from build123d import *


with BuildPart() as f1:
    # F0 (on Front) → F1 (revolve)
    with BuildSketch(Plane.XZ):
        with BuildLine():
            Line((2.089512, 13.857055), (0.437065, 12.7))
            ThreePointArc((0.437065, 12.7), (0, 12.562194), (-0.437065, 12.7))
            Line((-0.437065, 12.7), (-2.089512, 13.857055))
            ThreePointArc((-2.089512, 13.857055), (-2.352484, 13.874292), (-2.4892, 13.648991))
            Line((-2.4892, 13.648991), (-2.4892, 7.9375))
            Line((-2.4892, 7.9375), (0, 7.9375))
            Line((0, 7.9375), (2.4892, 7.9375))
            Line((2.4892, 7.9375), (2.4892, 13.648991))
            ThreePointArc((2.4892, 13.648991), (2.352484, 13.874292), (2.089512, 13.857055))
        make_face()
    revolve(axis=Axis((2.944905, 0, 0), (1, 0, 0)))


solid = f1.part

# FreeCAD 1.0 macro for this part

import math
import FreeCAD as App
import Part
import Sketcher
Q = App.Units.Quantity

doc = App.newDocument("Part")
body = doc.addObject("PartDesign::Body", "Body")

sketch1 = body.newObject("Sketcher::SketchObject", "Sketch")
sketch1.AttachmentSupport = (doc.getObject("XZ_Plane"), [""])
sketch1.MapMode = "FlatFace"
sketch1.addGeometry(Part.LineSegment(App.Vector(2.09, 13.86, 0), App.Vector(0.44, 12.7, 0)), False)
sketch1.addGeometry(Part.ArcOfCircle(Part.Circle(App.Vector(0, 13.32, 0), App.Vector(0, 0, 1), 0.76), math.radians(-125), math.radians(-55)), False)
sketch1.addGeometry(Part.LineSegment(App.Vector(-0.44, 12.7, 0), App.Vector(-2.09, 13.86, 0)), False)
sketch1.addGeometry(Part.ArcOfCircle(Part.Circle(App.Vector(-2.24, 13.65, 0), App.Vector(0, 0, 1), 0.25), math.radians(55), math.radians(180)), False)
sketch1.addGeometry(Part.LineSegment(App.Vector(-2.49, 13.65, 0), App.Vector(-2.49, 7.94, 0)), False)
sketch1.addGeometry(Part.LineSegment(App.Vector(-2.49, 7.94, 0), App.Vector(2.49, 7.94, 0)), False)
sketch1.addGeometry(Part.LineSegment(App.Vector(2.49, 7.94, 0), App.Vector(2.49, 13.65, 0)), False)
sketch1.addGeometry(Part.ArcOfCircle(Part.Circle(App.Vector(2.24, 13.65, 0), App.Vector(0, 0, 1), 0.25), math.radians(0), math.radians(125)), False)
sketch1.addConstraint(Sketcher.Constraint("Tangent", 0, 2, 1, 2))
sketch1.addConstraint(Sketcher.Constraint("Tangent", 1, 1, 2, 1))
sketch1.addConstraint(Sketcher.Constraint("Coincident", 2, 2, 3, 1))
sketch1.addConstraint(Sketcher.Constraint("Coincident", 3, 2, 4, 1))
sketch1.addConstraint(Sketcher.Constraint("Coincident", 4, 2, 5, 1))
sketch1.addConstraint(Sketcher.Constraint("Coincident", 5, 2, 6, 1))
sketch1.addConstraint(Sketcher.Constraint("Coincident", 6, 2, 7, 1))
sketch1.addConstraint(Sketcher.Constraint("Coincident", 7, 2, 0, 1))
sketch1.addConstraint(Sketcher.Constraint("Vertical", 4))
sketch1.addConstraint(Sketcher.Constraint("Horizontal", 5))
sketch1.addConstraint(Sketcher.Constraint("Vertical", 6))
sketch1.addConstraint(Sketcher.Constraint("Equal", 3, 7))
sketch1.addConstraint(Sketcher.Constraint("Symmetric", 3, 3, 7, 3, -2))
sketch1.addConstraint(Sketcher.Constraint("PointOnObject", 1, 3, -2))
sketch1.addConstraint(Sketcher.Constraint("Horizontal", 7, 3, 3, 2))
sketch1.addConstraint(Sketcher.Constraint("Horizontal", 3, 2, 6, 2))
sketch1.addConstraint(Sketcher.Constraint("Horizontal", 2, 2, 7, 2))
sketch1.addConstraint(Sketcher.Constraint("Radius", 1, Q("0.03 in")))
sketch1.addConstraint(Sketcher.Constraint("Radius", 3, Q("0.01 in")))
sketch1.addConstraint(Sketcher.Constraint("Angle", 0, Q("-145.00002 deg")))
sketch1.addConstraint(Sketcher.Constraint("DistanceY", -1, 1, 0, 2, Q("0.5 in")))
sketch1.addConstraint(Sketcher.Constraint("DistanceX", 5, 1, 5, 2, Q("0.196 in")))
sketch1.addConstraint(Sketcher.Constraint("DistanceY", -1, 1, 4, 2, Q("0.3125 in")))
sketch1.addConstraint(Sketcher.Constraint("DistanceX", 2, 2, -1, 1, Q("2.089512 mm")))
revolution = body.newObject("PartDesign::Revolution", "Revolution")
revolution.Profile = sketch1
revolution.ReferenceAxis = (sketch1, ["H_Axis"])
revolution.Angle = 360

doc.recompute()
